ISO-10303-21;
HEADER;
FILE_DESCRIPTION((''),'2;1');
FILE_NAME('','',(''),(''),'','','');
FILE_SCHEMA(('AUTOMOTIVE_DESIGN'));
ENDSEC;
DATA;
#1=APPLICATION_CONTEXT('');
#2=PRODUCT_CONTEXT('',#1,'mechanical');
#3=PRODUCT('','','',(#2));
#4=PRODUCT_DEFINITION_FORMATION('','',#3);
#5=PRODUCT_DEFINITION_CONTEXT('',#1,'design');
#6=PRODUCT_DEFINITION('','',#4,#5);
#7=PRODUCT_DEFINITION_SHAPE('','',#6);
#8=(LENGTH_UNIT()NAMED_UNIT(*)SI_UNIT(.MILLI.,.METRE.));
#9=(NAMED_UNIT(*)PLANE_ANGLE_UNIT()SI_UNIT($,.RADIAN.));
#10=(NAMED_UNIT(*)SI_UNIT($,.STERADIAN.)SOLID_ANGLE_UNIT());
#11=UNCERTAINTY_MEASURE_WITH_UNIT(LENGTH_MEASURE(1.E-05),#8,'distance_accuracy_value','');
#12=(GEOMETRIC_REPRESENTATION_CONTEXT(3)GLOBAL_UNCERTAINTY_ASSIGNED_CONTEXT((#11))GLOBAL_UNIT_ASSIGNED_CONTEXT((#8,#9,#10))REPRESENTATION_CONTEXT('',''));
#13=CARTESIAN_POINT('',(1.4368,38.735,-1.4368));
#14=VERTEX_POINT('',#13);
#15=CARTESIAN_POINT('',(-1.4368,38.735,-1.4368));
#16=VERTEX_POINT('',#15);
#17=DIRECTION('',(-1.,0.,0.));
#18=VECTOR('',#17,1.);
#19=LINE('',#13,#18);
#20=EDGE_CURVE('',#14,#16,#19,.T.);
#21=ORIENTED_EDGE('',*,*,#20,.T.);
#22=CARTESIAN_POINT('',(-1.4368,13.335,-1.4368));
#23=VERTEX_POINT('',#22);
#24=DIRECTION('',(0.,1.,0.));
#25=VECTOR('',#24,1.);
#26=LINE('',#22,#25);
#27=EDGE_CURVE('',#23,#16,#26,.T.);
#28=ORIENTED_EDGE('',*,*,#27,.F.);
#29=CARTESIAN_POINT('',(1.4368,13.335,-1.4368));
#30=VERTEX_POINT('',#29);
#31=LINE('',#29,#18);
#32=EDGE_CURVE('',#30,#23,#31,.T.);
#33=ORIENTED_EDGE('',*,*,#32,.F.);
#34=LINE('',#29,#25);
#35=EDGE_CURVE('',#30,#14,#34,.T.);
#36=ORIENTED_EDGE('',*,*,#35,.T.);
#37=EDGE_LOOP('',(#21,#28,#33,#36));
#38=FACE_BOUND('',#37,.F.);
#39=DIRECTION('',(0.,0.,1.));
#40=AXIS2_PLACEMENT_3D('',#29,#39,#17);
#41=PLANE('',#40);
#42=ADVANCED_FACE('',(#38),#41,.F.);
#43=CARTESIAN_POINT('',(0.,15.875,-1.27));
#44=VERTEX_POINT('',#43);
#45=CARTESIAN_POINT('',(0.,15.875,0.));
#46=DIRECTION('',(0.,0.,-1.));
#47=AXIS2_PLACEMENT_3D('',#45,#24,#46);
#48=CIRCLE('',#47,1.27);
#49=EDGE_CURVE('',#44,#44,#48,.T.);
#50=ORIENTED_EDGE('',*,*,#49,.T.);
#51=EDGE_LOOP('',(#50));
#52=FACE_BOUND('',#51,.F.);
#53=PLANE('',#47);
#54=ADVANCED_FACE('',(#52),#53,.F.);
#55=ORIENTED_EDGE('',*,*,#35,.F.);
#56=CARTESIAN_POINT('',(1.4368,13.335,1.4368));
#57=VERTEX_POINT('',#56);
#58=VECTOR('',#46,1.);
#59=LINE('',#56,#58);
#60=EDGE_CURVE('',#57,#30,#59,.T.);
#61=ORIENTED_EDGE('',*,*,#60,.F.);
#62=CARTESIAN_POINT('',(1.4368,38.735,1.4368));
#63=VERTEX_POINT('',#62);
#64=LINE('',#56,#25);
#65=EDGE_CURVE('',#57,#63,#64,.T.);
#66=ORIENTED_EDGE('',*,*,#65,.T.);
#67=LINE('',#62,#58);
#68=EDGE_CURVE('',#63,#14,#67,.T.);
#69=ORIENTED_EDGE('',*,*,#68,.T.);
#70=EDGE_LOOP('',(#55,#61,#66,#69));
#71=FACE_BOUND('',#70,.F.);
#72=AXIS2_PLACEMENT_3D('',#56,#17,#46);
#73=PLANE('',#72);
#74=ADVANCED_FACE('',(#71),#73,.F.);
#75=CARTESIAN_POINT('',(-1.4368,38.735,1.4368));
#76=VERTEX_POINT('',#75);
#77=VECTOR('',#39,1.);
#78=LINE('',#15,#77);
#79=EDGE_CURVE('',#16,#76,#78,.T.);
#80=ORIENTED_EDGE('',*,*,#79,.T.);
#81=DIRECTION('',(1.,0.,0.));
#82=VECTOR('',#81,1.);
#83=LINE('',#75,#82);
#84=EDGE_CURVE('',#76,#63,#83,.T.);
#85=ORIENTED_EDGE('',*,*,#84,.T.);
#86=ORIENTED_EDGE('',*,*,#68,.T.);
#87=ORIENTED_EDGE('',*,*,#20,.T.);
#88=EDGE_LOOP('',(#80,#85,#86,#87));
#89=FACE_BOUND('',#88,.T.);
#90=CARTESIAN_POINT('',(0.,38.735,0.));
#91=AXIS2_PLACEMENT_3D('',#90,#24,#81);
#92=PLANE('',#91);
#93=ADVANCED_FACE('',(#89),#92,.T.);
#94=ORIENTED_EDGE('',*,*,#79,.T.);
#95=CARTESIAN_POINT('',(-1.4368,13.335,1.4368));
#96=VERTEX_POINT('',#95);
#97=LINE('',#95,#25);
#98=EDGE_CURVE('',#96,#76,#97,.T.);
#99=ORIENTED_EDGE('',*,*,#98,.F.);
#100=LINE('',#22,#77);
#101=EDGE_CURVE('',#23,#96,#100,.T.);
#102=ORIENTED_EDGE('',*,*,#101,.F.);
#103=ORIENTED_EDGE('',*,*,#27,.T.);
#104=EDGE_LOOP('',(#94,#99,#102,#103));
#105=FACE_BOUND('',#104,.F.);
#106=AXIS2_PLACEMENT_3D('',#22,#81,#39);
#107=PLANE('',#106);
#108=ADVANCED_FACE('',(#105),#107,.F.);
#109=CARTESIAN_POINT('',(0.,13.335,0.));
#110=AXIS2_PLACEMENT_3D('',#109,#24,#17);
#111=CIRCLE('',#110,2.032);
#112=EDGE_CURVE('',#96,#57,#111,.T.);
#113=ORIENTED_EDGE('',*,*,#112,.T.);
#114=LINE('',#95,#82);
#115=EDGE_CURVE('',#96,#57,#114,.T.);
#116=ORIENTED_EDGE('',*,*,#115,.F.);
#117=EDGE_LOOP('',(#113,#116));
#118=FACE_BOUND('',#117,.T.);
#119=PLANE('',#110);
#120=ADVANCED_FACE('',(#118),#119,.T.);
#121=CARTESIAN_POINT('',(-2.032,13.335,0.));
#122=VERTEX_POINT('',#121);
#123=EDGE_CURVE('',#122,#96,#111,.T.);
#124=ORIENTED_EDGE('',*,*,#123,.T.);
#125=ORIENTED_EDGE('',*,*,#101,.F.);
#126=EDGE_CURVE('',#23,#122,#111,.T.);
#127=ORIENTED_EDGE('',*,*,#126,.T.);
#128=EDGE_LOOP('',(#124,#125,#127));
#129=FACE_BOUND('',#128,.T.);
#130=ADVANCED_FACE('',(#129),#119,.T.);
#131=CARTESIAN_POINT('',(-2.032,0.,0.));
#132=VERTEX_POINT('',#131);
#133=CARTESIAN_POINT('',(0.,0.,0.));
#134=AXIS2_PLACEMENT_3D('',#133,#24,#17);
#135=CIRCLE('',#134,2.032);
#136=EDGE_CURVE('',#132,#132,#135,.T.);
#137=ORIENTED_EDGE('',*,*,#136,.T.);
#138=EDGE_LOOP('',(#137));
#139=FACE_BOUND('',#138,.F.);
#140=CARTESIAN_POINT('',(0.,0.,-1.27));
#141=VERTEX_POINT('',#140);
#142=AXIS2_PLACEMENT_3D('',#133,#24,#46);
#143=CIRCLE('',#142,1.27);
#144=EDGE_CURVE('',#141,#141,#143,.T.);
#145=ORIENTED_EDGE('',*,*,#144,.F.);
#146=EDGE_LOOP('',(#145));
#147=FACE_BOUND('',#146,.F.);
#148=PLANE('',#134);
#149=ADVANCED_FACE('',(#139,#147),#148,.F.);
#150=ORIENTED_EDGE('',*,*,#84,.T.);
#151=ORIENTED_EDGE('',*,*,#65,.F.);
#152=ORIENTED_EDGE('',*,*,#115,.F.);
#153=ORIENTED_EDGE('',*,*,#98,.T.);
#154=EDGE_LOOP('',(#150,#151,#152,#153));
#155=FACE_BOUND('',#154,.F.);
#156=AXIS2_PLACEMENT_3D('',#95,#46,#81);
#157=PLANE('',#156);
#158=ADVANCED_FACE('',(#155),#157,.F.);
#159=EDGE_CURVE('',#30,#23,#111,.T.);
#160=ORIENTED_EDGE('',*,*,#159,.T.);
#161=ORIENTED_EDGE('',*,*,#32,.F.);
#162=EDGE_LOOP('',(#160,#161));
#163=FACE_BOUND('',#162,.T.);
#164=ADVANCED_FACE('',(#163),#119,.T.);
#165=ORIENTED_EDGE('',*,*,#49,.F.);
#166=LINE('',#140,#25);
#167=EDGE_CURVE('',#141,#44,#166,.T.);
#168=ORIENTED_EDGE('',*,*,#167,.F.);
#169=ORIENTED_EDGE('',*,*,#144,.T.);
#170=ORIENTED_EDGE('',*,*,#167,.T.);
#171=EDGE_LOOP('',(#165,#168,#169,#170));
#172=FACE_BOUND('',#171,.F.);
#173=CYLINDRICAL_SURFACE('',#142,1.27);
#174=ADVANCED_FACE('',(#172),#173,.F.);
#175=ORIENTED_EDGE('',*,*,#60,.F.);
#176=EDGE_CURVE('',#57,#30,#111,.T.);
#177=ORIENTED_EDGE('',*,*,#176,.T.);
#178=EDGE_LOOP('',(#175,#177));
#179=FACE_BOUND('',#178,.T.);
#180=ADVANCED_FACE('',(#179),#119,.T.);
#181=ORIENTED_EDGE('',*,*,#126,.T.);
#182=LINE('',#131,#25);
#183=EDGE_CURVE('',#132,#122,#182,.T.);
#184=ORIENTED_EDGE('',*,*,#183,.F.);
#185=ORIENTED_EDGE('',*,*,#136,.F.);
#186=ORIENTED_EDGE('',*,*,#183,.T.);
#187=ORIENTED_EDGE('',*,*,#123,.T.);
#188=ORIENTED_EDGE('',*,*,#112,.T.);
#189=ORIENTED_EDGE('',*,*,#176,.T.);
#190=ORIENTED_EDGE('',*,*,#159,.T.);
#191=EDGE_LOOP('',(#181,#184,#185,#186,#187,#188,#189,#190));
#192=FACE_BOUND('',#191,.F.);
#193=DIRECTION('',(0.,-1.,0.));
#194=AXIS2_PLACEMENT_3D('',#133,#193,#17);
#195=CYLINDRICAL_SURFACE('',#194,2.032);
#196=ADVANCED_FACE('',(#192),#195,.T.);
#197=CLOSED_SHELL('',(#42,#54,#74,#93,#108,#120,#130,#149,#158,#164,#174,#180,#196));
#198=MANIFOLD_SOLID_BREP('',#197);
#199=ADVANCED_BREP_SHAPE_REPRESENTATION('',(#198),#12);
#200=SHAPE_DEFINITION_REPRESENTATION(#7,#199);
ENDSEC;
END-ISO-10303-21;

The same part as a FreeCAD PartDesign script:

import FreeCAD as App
import Part
import Sketcher
from FreeCAD import Vector
Q = App.Units.Quantity


def add_polygon(sketch, points):
    """Adds a closed chain of lines whose ends are joined by coincident constraints."""
    first, n = sketch.GeometryCount, len(points)
    for a, b in zip(points, points[1:] + points[:1]):
        sketch.addGeometry(Part.LineSegment(App.Vector(*a, 0), App.Vector(*b, 0)), False)
    for i in range(n):
        sketch.addConstraint(Sketcher.Constraint("Coincident", first + i, 2, first + (i + 1) % n, 1))

doc = App.newDocument("Part")
params = doc.addObject("Spreadsheet::Sheet", "Params")
for row, (alias, value) in enumerate([
    ("sketch1_diameter", "0.16 in"),
    ("pad1_length", "0.525 in"),
    ("pad2_length", "1 in"),
    ("sketch3_diameter", "0.1 in"),
    ("hole_diameter", "0.1 in"),
    ("hole_depth", "0.625 in"),
], start=1):
    params.set(f"A{row}", alias)
    params.set(f"B{row}", "=" + value)
    params.setAlias(f"B{row}", alias)

body = doc.addObject("PartDesign::Body", "Body")

# Sketch on XZ plane
sketch1 = body.newObject("Sketcher::SketchObject", "Sketch")
sketch1.AttachmentSupport = (doc.getObject("XZ_Plane"), [""])
sketch1.MapMode = "FlatFace"
sketch1.addGeometry(Part.Circle(Vector(0, 0, 0), Vector(0, 0, 1), 2.032), False)
sketch1.addConstraint([
    Sketcher.Constraint("Coincident", 0, 3, -1, 1),
    Sketcher.Constraint("Diameter", 0, Q("0.16 in")),
])
sketch1.setExpression("Constraints[1]", "Params.sketch1_diameter")
pad1 = body.newObject("PartDesign::Pad", "Pad")
pad1.Profile = sketch1
pad1.setExpression("Length", "Params.pad1_length")
pad1.Reversed = True

# Sketch on XZ plane
sketch2 = body.newObject("Sketcher::SketchObject", "Sketch001")
sketch2.AttachmentSupport = (doc.getObject("XZ_Plane"), [""])
sketch2.MapMode = "FlatFace"
sketch2.AttachmentOffset = App.Placement(Vector(0, 0, -0.525 * 25.4), App.Rotation())
add_polygon(sketch2, [(1.4368, 1.4368), (1.4368, -1.4368), (-1.4368, -1.4368), (-1.4368, 1.4368)])  # lines 0-3
sketch2.addConstraint([
    Sketcher.Constraint("Vertical", 0),
    Sketcher.Constraint("Horizontal", 1),
    Sketcher.Constraint("Vertical", 2),
    Sketcher.Constraint("Horizontal", 3),
    Sketcher.Constraint("Symmetric", 0, 2, 2, 2, -1, 1),
    Sketcher.Constraint("Equal", 3, 0),
    Sketcher.Constraint("DistanceX", 1, 2, 1, 1, Q("2.8736 mm")),
])
pad2 = body.newObject("PartDesign::Pad", "Pad001")
pad2.Profile = sketch2
pad2.setExpression("Length", "Params.pad2_length")
pad2.Reversed = True

# Sketch on XZ plane
sketch3 = body.newObject("Sketcher::SketchObject", "Sketch002")
sketch3.AttachmentSupport = (doc.getObject("XZ_Plane"), [""])
sketch3.MapMode = "FlatFace"
sketch3.addGeometry(Part.Circle(Vector(0, 0, 0), Vector(0, 0, 1), 1.27), False)
sketch3.addConstraint([
    Sketcher.Constraint("Coincident", 0, 3, -1, 1),
    Sketcher.Constraint("Diameter", 0, Q("0.1 in")),
])
sketch3.setExpression("Constraints[1]", "Params.sketch3_diameter")
doc.recompute()
hole = body.newObject("PartDesign::Hole", "Hole")
hole.Profile = sketch3
hole.ThreadType = "None"
hole.setExpression("Diameter", "Params.hole_diameter")
hole.DepthType = "Dimension"
hole.setExpression("Depth", "Params.hole_depth")
hole.DrillPoint = "Flat"

doc.recompute()
